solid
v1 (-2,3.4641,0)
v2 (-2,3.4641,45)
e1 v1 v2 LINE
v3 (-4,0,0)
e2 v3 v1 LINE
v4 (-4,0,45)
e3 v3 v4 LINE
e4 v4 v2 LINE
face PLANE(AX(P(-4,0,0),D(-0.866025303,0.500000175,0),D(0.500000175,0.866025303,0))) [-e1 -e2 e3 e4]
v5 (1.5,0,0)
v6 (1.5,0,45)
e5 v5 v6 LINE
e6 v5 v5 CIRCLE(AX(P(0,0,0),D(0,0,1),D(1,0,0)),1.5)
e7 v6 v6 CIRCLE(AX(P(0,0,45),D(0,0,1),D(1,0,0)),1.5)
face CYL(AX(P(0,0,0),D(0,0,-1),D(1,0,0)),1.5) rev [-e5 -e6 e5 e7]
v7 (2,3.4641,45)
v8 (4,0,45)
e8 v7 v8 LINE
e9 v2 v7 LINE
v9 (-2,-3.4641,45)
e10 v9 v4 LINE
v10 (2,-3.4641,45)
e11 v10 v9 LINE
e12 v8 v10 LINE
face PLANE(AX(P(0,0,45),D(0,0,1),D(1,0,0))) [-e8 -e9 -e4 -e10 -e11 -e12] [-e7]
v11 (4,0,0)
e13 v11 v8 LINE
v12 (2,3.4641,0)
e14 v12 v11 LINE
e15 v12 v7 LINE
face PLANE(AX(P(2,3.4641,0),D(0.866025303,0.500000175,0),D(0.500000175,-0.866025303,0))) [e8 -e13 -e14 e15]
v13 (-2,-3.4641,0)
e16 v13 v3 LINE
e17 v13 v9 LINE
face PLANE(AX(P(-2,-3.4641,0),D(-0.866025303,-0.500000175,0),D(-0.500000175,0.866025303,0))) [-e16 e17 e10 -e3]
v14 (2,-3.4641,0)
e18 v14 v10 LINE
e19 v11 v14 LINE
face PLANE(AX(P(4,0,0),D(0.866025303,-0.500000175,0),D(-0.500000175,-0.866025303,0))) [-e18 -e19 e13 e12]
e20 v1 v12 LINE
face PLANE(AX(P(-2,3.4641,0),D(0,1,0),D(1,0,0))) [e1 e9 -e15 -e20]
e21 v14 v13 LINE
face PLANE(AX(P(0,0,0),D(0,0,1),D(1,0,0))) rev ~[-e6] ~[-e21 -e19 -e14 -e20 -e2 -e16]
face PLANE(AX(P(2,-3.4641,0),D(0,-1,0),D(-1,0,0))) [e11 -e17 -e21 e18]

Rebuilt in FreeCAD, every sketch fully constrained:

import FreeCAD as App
import Part
import Sketcher

V = App.Vector
Q = App.Units.Quantity


def add_polygon(sketch, points):
    """Adds a closed chain of lines whose ends are joined by coincident constraints."""
    first, n = sketch.GeometryCount, len(points)
    for a, b in zip(points, points[1:] + points[:1]):
        sketch.addGeometry(Part.LineSegment(App.Vector(*a, 0), App.Vector(*b, 0)), False)
    for i in range(n):
        sketch.addConstraint(Sketcher.Constraint("Coincident", first + i, 2, first + (i + 1) % n, 1))

doc = App.newDocument("Part")
body = doc.addObject("PartDesign::Body", "Body")

# Sketch on XY plane
sketch1 = body.newObject("Sketcher::SketchObject", "Sketch")
sketch1.AttachmentSupport = (doc.getObject("XY_Plane"), [""])
sketch1.MapMode = "FlatFace"
add_polygon(sketch1, [(2, -3.5), (4, 0), (2, 3.5), (-2, 3.5), (-4, 0), (-2, -3.5)])  # lines 0-5
sketch1.addGeometry(Part.Circle(V(0, 0, 0), V(0, 0, 1), 1.5), False)  # 6
sketch1.addConstraint([
    Sketcher.Constraint("Horizontal", 2),
    Sketcher.Constraint("Horizontal", 5),
    Sketcher.Constraint("Coincident", 6, 3, -1, 1),
    Sketcher.Constraint("Symmetric", 0, 2, 3, 2, -1, 1),
    Sketcher.Constraint("Symmetric", 1, 2, 4, 2, -1, 1),
    Sketcher.Constraint("PointOnObject", 0, 2, -1),
    Sketcher.Constraint("Parallel", 0, 3),
    Sketcher.Constraint("Vertical", 2, 2, 4, 2),
    Sketcher.Constraint("Diameter", 6, 3.0),
    Sketcher.Constraint("DistanceX", 2, 2, 2, 1, 4.0),
    Sketcher.Constraint("Angle", 0, Q("60 deg")),
    Sketcher.Constraint("Distance", 0, 4.0),
])
pad1 = body.newObject("PartDesign::Pad", "Pad")
pad1.Profile = sketch1
pad1.Length = 45

doc.recompute()
